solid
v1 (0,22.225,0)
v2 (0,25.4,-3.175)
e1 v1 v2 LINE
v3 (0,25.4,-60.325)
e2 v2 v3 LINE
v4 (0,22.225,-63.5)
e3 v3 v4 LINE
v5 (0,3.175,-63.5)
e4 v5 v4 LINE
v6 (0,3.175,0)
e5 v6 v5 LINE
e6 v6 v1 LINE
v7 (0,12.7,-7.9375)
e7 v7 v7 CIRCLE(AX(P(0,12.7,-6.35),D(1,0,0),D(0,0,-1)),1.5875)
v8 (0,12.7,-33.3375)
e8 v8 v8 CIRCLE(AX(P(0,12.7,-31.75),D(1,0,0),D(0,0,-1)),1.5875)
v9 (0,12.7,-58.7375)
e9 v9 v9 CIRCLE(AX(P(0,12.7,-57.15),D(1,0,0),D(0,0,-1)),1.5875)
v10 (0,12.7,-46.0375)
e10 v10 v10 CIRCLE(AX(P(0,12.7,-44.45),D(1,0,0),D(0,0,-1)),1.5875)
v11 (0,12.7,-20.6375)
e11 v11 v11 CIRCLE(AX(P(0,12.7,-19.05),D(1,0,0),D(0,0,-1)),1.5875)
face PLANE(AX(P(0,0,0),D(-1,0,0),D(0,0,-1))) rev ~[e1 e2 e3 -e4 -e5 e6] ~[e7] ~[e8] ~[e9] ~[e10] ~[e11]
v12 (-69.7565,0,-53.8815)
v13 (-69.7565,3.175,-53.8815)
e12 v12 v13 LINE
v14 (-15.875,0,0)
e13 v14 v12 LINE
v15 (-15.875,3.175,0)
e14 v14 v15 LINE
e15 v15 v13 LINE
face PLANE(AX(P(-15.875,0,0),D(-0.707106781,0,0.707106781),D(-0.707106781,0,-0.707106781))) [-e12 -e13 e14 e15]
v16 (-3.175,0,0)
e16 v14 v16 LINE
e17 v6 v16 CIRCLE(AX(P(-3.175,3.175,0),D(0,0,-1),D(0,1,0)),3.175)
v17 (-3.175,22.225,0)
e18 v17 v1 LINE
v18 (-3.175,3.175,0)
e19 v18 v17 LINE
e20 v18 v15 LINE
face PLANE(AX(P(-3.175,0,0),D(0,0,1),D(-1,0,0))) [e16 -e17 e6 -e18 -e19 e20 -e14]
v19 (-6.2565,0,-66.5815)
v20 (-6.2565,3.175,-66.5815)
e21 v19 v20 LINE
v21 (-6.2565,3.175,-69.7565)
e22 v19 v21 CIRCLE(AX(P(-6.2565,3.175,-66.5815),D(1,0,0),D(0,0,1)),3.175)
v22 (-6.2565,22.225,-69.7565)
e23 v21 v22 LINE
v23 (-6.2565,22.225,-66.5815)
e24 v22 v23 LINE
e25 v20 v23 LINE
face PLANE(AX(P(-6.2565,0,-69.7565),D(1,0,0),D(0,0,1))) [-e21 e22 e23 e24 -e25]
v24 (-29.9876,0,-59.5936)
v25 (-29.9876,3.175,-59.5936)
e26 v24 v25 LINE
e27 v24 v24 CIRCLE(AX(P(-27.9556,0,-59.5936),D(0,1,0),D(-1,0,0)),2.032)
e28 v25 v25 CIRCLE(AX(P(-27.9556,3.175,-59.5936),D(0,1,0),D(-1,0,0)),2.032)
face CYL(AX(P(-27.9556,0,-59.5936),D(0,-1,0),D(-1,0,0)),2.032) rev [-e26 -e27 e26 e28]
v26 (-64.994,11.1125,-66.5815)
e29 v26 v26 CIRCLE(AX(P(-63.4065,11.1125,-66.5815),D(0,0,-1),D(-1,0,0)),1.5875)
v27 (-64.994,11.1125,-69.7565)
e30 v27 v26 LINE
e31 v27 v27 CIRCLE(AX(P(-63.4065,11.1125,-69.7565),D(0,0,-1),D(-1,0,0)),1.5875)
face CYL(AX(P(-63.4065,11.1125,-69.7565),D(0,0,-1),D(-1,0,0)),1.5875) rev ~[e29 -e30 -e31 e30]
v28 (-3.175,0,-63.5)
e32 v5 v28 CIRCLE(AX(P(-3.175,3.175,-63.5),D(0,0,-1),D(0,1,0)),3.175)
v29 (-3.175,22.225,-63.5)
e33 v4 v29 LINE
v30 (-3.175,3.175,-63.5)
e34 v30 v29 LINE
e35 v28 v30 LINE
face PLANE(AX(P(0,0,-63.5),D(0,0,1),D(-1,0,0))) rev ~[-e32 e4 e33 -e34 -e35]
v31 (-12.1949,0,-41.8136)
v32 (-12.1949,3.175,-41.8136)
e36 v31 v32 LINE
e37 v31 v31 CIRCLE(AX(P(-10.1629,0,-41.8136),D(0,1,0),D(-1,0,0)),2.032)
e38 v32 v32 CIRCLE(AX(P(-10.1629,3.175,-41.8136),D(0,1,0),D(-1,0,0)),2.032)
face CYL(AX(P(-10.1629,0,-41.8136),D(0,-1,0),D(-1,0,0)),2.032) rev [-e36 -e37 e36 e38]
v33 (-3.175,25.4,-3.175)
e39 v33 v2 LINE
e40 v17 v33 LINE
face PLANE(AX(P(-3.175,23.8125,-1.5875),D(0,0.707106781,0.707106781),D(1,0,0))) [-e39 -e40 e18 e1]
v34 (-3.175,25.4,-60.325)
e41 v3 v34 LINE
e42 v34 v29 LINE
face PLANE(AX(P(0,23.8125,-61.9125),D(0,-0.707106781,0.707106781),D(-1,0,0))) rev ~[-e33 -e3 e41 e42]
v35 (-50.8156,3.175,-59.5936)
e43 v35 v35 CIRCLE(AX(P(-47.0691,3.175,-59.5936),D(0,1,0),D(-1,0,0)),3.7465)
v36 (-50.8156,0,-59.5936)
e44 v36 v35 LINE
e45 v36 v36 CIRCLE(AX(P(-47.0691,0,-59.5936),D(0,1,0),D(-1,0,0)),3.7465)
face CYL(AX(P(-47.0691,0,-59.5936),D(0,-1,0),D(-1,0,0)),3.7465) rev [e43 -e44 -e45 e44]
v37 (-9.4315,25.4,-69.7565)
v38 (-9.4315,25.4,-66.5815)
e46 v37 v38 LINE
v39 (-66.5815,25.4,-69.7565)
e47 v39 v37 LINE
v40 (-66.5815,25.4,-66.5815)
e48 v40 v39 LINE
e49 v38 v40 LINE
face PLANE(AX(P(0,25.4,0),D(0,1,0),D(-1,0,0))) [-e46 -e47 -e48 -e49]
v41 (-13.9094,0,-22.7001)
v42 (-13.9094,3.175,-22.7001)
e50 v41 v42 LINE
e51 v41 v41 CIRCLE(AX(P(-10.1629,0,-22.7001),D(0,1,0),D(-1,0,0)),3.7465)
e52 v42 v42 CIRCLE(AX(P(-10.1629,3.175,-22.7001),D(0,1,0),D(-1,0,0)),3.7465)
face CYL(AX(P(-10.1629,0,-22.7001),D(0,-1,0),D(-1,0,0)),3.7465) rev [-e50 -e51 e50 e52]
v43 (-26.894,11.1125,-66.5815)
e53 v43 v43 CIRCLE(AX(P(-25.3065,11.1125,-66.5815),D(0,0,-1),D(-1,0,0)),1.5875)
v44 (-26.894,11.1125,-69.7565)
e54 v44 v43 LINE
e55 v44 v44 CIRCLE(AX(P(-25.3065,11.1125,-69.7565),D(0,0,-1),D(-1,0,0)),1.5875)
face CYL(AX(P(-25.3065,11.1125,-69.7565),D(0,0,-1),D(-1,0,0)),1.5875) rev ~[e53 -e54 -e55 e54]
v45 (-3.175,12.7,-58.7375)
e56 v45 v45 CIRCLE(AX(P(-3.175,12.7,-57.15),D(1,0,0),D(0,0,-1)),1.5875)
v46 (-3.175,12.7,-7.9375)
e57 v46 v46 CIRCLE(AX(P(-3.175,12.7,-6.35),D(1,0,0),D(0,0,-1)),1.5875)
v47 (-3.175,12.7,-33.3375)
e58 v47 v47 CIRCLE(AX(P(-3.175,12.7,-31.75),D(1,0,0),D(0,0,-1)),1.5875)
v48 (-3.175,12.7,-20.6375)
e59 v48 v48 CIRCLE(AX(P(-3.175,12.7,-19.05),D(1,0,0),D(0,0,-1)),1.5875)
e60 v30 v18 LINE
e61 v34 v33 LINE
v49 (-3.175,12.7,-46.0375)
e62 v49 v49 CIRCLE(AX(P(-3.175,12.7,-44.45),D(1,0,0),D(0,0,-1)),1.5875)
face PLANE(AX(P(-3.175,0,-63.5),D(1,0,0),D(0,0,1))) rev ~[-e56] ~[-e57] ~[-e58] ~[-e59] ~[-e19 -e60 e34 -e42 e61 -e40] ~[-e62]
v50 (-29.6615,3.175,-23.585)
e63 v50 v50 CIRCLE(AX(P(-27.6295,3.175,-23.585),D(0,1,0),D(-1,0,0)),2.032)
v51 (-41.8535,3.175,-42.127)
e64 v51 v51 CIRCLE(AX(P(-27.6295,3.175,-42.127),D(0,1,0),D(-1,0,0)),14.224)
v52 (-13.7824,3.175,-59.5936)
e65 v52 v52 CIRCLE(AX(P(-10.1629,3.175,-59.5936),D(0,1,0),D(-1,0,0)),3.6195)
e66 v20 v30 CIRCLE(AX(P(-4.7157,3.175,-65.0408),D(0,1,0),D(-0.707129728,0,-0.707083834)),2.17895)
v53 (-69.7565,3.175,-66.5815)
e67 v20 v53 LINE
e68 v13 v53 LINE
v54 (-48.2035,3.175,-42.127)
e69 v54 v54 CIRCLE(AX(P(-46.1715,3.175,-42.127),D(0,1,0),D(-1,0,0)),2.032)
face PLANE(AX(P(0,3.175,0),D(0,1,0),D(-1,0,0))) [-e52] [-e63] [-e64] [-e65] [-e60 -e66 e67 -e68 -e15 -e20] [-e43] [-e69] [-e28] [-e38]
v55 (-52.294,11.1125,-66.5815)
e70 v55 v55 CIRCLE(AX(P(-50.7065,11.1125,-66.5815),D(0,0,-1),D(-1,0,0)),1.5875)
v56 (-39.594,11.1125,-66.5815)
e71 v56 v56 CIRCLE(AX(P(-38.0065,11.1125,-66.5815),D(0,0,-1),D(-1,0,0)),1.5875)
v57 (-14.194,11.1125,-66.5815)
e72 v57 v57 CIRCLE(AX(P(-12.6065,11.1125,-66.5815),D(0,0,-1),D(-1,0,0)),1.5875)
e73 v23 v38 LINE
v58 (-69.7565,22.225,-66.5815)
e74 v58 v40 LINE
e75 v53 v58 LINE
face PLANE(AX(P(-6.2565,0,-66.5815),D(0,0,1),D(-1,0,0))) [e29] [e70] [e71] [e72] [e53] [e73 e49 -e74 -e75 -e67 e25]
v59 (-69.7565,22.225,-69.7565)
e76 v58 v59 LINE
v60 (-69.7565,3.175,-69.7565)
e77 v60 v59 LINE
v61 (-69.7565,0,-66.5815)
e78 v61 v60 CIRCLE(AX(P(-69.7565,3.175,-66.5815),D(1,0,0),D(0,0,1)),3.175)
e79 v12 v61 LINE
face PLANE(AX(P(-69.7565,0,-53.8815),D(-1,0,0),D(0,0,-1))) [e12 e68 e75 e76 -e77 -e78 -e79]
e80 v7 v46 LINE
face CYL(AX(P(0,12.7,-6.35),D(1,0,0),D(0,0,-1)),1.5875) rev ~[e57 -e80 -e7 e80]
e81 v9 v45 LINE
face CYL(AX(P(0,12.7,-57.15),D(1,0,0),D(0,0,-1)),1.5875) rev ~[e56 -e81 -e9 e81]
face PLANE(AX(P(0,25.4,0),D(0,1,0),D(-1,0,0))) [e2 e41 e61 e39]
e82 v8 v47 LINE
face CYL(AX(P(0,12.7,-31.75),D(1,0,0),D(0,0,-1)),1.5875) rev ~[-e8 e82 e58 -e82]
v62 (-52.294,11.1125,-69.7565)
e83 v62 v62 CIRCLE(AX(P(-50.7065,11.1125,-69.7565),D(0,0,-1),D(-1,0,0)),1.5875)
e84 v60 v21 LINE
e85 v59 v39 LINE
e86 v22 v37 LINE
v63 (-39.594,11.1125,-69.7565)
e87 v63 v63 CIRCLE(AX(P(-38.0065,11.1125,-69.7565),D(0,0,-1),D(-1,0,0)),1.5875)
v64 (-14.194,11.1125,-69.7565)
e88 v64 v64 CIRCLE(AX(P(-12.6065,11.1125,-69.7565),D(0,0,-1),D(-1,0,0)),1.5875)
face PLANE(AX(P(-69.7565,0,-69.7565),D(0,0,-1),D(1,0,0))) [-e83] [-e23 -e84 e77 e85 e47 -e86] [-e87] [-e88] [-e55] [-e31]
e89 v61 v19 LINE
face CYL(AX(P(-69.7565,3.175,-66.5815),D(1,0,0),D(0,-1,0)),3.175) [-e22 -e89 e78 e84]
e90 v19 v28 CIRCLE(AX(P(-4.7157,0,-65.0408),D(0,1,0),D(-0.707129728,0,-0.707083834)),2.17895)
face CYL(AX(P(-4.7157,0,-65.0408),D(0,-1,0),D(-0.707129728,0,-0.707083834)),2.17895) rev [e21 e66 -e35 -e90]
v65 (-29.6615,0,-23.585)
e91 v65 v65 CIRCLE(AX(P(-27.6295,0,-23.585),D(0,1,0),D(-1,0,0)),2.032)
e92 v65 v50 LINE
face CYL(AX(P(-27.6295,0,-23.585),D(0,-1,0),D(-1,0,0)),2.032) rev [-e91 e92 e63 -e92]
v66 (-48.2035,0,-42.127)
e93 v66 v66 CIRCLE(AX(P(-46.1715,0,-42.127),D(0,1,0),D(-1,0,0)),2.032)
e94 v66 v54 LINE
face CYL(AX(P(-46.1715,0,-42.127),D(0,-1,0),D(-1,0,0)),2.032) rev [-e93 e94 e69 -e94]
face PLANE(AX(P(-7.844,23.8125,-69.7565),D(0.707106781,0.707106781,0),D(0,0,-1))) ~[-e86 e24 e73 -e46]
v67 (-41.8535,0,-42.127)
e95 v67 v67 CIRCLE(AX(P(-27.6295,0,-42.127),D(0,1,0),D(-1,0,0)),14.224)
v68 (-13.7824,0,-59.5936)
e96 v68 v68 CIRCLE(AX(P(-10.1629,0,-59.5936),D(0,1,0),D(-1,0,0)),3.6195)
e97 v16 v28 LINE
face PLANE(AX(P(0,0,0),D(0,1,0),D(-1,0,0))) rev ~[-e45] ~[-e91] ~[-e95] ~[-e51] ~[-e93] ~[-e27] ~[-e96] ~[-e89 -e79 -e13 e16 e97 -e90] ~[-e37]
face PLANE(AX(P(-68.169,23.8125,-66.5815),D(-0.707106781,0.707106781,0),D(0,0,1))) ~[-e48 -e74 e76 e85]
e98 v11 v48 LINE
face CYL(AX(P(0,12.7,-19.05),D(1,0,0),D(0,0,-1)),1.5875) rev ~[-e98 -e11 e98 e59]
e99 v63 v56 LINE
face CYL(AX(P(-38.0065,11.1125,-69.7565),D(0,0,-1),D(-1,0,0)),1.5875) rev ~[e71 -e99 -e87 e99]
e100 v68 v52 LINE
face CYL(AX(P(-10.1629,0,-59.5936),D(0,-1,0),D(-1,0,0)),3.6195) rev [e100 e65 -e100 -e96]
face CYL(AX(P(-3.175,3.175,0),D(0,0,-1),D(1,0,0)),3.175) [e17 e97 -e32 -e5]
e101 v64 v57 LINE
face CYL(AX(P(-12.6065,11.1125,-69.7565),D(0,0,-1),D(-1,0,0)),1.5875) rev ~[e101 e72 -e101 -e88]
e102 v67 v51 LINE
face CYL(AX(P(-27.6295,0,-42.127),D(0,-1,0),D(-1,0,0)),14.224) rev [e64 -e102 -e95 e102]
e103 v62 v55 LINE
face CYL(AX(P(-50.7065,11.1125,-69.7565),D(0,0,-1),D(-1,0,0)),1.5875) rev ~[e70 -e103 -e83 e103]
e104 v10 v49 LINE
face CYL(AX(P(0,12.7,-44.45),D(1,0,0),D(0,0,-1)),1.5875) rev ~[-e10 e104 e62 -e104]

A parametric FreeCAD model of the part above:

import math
import FreeCAD as App
import Part
import Sketcher

V = App.Vector
Q = App.Units.Quantity


def edges_at(feature, points):
    """Names of the edges that pass closest to the given points."""
    edges = feature.Shape.Edges
    near = lambda p: min(range(len(edges)), key=lambda i: edges[i].distToShape(Part.Vertex(*p))[0])
    return sorted({f"Edge{near(p) + 1}" for p in points})

doc = App.newDocument("Part")
body = doc.addObject("PartDesign::Body", "Body")

sketch1 = body.newObject("Sketcher::SketchObject", "Sketch")
sketch1.AttachmentSupport = (doc.getObject("XZ_Plane"), [""])
sketch1.MapMode = "FlatFace"
sketch1.addGeometry(Part.LineSegment(V(-15.9, 0, 0), V(-3.2, 0, 0)), False)
sketch1.addGeometry(Part.LineSegment(V(-3.2, 0, 0), V(-3.2, -63.5, 0)), False)
sketch1.addGeometry(Part.ArcOfCircle(Part.Circle(V(-4.7, -65, 0), V(0, 0, 1), 2.2), math.radians(45), math.radians(225)), False)
sketch1.addGeometry(Part.LineSegment(V(-6.3, -66.6, 0), V(-69.8, -66.6, 0)), False)
sketch1.addGeometry(Part.LineSegment(V(-69.8, -66.6, 0), V(-69.8, -53.9, 0)), False)
sketch1.addGeometry(Part.LineSegment(V(-69.8, -53.9, 0), V(-15.9, 0, 0)), False)
sketch1.addGeometry(Part.Circle(V(-10.2, -59.6, 0), V(0, 0, 1), 3.6), False)
sketch1.addGeometry(Part.Circle(V(-28, -59.6, 0), V(0, 0, 1), 2), False)
sketch1.addGeometry(Part.Circle(V(-10.2, -41.8, 0), V(0, 0, 1), 2), False)
sketch1.addGeometry(Part.Circle(V(-27.6, -42.1, 0), V(0, 0, 1), 14.2), False)
sketch1.addGeometry(Part.Circle(V(-47.1, -59.6, 0), V(0, 0, 1), 3.7), False)
sketch1.addGeometry(Part.Circle(V(-46.2, -42.1, 0), V(0, 0, 1), 2), False)
sketch1.addGeometry(Part.Circle(V(-10.2, -22.7, 0), V(0, 0, 1), 3.7), False)
sketch1.addGeometry(Part.Circle(V(-27.6, -23.6, 0), V(0, 0, 1), 2), False)
sketch1.addConstraint(Sketcher.Constraint("Coincident", 0, 2, 1, 1))
sketch1.addConstraint(Sketcher.Constraint("Coincident", 1, 2, 2, 1))
sketch1.addConstraint(Sketcher.Constraint("Coincident", 2, 2, 3, 1))
sketch1.addConstraint(Sketcher.Constraint("Coincident", 3, 2, 4, 1))
sketch1.addConstraint(Sketcher.Constraint("Coincident", 4, 2, 5, 1))
sketch1.addConstraint(Sketcher.Constraint("Coincident", 5, 2, 0, 1))
sketch1.addConstraint(Sketcher.Constraint("Horizontal", 0))
sketch1.addConstraint(Sketcher.Constraint("Vertical", 1))
sketch1.addConstraint(Sketcher.Constraint("Horizontal", 3))
sketch1.addConstraint(Sketcher.Constraint("Vertical", 4))
sketch1.addConstraint(Sketcher.Constraint("Equal", 7, 8))
sketch1.addConstraint(Sketcher.Constraint("Equal", 8, 11))
sketch1.addConstraint(Sketcher.Constraint("Equal", 10, 12))
sketch1.addConstraint(Sketcher.Constraint("Equal", 11, 13))
sketch1.addConstraint(Sketcher.Constraint("PointOnObject", 0, 2, -1))
sketch1.addConstraint(Sketcher.Constraint("Horizontal", 6, 3, 7, 3))
sketch1.addConstraint(Sketcher.Constraint("Horizontal", 7, 3, 10, 3))
sketch1.addConstraint(Sketcher.Constraint("Horizontal", 9, 3, 11, 3))
sketch1.addConstraint(Sketcher.Constraint("Vertical", 6, 3, 8, 3))
sketch1.addConstraint(Sketcher.Constraint("Vertical", 8, 3, 12, 3))
sketch1.addConstraint(Sketcher.Constraint("Vertical", 9, 3, 13, 3))
sketch1.addConstraint(Sketcher.Constraint("Equal", 3, 1))
sketch1.addConstraint(Sketcher.Constraint("Equal", 0, 4))
sketch1.addConstraint(Sketcher.Constraint("Distance", 5, Q("3 in")))
sketch1.addConstraint(Sketcher.Constraint("DistanceX", 0, 1, 0, 2, Q("0.5 in")))
sketch1.addConstraint(Sketcher.Constraint("DistanceX", 3, 2, 3, 1, Q("2.5 in")))
sketch1.addConstraint(Sketcher.Constraint("Diameter", 7, Q("0.16 in")))
sketch1.addConstraint(Sketcher.Constraint("Diameter", 9, Q("1.12 in")))
sketch1.addConstraint(Sketcher.Constraint("Diameter", 6, Q("0.285 in")))
sketch1.addConstraint(Sketcher.Constraint("Diameter", 10, Q("0.295 in")))
sketch1.addConstraint(Sketcher.Constraint("DistanceX", 0, 2, -1, 1, Q("0.125 in")))
sketch1.addConstraint(Sketcher.Constraint("Angle", 5, Q("45 deg")))
sketch1.addConstraint(Sketcher.Constraint("DistanceY", 6, 3, 8, 3, Q("0.7 in")))
sketch1.addConstraint(Sketcher.Constraint("DistanceX", 11, 3, 9, 3, Q("0.73 in")))
sketch1.addConstraint(Sketcher.Constraint("DistanceY", 9, 3, 13, 3, Q("0.73 in")))
sketch1.addConstraint(Sketcher.Constraint("DistanceX", 10, 3, 6, 3, Q("1.453 in")))
sketch1.addConstraint(Sketcher.Constraint("DistanceY", 6, 3, -1, 1, Q("2.3462 in")))
sketch1.addConstraint(Sketcher.Constraint("DistanceY", 12, 3, -1, 1, Q("0.8937 in")))
sketch1.addConstraint(Sketcher.Constraint("DistanceX", 7, 3, 6, 3, Q("0.7005 in")))
sketch1.addConstraint(Sketcher.Constraint("DistanceX", 6, 3, 2, 2, Q("0.1538 in")))
sketch1.addConstraint(Sketcher.Constraint("DistanceX", 2, 3, -1, 1, Q("4.7158 mm")))
sketch1.addConstraint(Sketcher.Constraint("DistanceX", 9, 3, -1, 1, Q("27.6295 mm")))
sketch1.addConstraint(Sketcher.Constraint("DistanceY", 9, 3, -1, 1, Q("42.127 mm")))
pad1 = body.newObject("PartDesign::Pad", "Pad")
pad1.Profile = sketch1
pad1.Length = Q("0.125 in")
pad1.Reversed = True

sketch2 = body.newObject("Sketcher::SketchObject", "Sketch001")
sketch2.AttachmentSupport = (doc.getObject("XZ_Plane"), [""])
sketch2.MapMode = "FlatFace"
sketch2.addGeometry(Part.LineSegment(V(-3.2, 0, 0), V(0, 0, 0)), False)
sketch2.addGeometry(Part.LineSegment(V(0, 0, 0), V(0, -63.5, 0)), False)
sketch2.addGeometry(Part.LineSegment(V(0, -63.5, 0), V(-3.2, -63.5, 0)), False)
sketch2.addGeometry(Part.LineSegment(V(-3.2, -63.5, 0), V(-3.2, 0, 0)), False)
sketch2.addGeometry(Part.LineSegment(V(-69.8, -66.6, 0), V(-6.3, -66.6, 0)), False)
sketch2.addGeometry(Part.LineSegment(V(-6.3, -66.6, 0), V(-6.3, -69.8, 0)), False)
sketch2.addGeometry(Part.LineSegment(V(-6.3, -69.8, 0), V(-69.8, -69.8, 0)), False)
sketch2.addGeometry(Part.LineSegment(V(-69.8, -69.8, 0), V(-69.8, -66.6, 0)), False)
sketch2.addConstraint(Sketcher.Constraint("Coincident", 0, 2, 1, 1))
sketch2.addConstraint(Sketcher.Constraint("Coincident", 1, 2, 2, 1))
sketch2.addConstraint(Sketcher.Constraint("Coincident", 2, 2, 3, 1))
sketch2.addConstraint(Sketcher.Constraint("Coincident", 3, 2, 0, 1))
sketch2.addConstraint(Sketcher.Constraint("Coincident", 4, 2, 5, 1))
sketch2.addConstraint(Sketcher.Constraint("Coincident", 5, 2, 6, 1))
sketch2.addConstraint(Sketcher.Constraint("Coincident", 6, 2, 7, 1))
sketch2.addConstraint(Sketcher.Constraint("Coincident", 7, 2, 4, 1))
sketch2.addConstraint(Sketcher.Constraint("Horizontal", 0))
sketch2.addConstraint(Sketcher.Constraint("Vertical", 1))
sketch2.addConstraint(Sketcher.Constraint("Horizontal", 2))
sketch2.addConstraint(Sketcher.Constraint("Vertical", 3))
sketch2.addConstraint(Sketcher.Constraint("Horizontal", 4))
sketch2.addConstraint(Sketcher.Constraint("Vertical", 5))
sketch2.addConstraint(Sketcher.Constraint("Horizontal", 6))
sketch2.addConstraint(Sketcher.Constraint("Vertical", 7))
sketch2.addConstraint(Sketcher.Constraint("Coincident", 0, 2, -1, 1))
sketch2.addConstraint(Sketcher.Constraint("Equal", 6, 1))
sketch2.addConstraint(Sketcher.Constraint("Equal", 2, 5))
sketch2.addConstraint(Sketcher.Constraint("DistanceX", 4, 1, 4, 2, Q("2.5 in")))
sketch2.addConstraint(Sketcher.Constraint("DistanceX", 0, 1, 0, 2, Q("0.125 in")))
sketch2.addConstraint(Sketcher.Constraint("DistanceX", 4, 2, -1, 1, Q("6.2565 mm")))
sketch2.addConstraint(Sketcher.Constraint("DistanceY", 4, 2, -1, 1, Q("66.5815 mm")))
pad2 = body.newObject("PartDesign::Pad", "Pad001")
pad2.Profile = sketch2
pad2.Length = Q("1 in")
pad2.Reversed = True
doc.recompute()

chamfer = body.newObject("PartDesign::Chamfer", "Chamfer")
chamfer.Base = (pad2, edges_at(pad2, [
    (-6.256, 25.4, -68.169),
    (-1.587, 25.4, -63.5),
    (-1.587, 25.4, 0),
    (-69.757, 25.4, -68.169),
]))
chamfer.Size = Q("0.125 in")

sketch3 = body.newObject("Sketcher::SketchObject", "Sketch002")
sketch3.AttachmentSupport = (doc.getObject("YZ_Plane"), [""])
sketch3.MapMode = "FlatFace"
sketch3.addGeometry(Part.Circle(V(12.7, -6.3, 0), V(0, 0, 1), 1.6), False)
sketch3.addGeometry(Part.Circle(V(12.7, -19.1, 0), V(0, 0, 1), 1.6), False)
sketch3.addGeometry(Part.Circle(V(12.7, -31.8, 0), V(0, 0, 1), 1.6), False)
sketch3.addGeometry(Part.Circle(V(12.7, -44.5, 0), V(0, 0, 1), 1.6), False)
sketch3.addGeometry(Part.Circle(V(12.7, -57.1, 0), V(0, 0, 1), 1.6), False)
sketch3.addConstraint(Sketcher.Constraint("Equal", 0, 1))
sketch3.addConstraint(Sketcher.Constraint("Equal", 1, 2))
sketch3.addConstraint(Sketcher.Constraint("Equal", 2, 3))
sketch3.addConstraint(Sketcher.Constraint("Equal", 3, 4))
sketch3.addConstraint(Sketcher.Constraint("Vertical", 0, 3, 1, 3))
sketch3.addConstraint(Sketcher.Constraint("Vertical", 1, 3, 2, 3))
sketch3.addConstraint(Sketcher.Constraint("Vertical", 2, 3, 3, 3))
sketch3.addConstraint(Sketcher.Constraint("Vertical", 3, 3, 4, 3))
sketch3.addConstraint(Sketcher.Constraint("Diameter", 0, Q("0.125 in")))
sketch3.addConstraint(Sketcher.Constraint("DistanceY", 2, 3, 0, 3, Q("1 in")))
sketch3.addConstraint(Sketcher.Constraint("DistanceY", 3, 3, 1, 3, Q("1 in")))
sketch3.addConstraint(Sketcher.Constraint("DistanceY", 4, 3, 2, 3, Q("1 in")))
sketch3.addConstraint(Sketcher.Constraint("DistanceX", -1, 1, 0, 3, Q("0.5 in")))
sketch3.addConstraint(Sketcher.Constraint("DistanceY", 1, 3, 0, 3, Q("0.5 in")))
sketch3.addConstraint(Sketcher.Constraint("DistanceY", 0, 3, -1, 1, Q("0.25 in")))
pocket1 = body.newObject("PartDesign::Pocket", "Pocket")
pocket1.Profile = sketch3
pocket1.Length = Q("0.125 in")

sketch4 = body.newObject("Sketcher::SketchObject", "Sketch003")
sketch4.AttachmentSupport = (doc.getObject("XY_Plane"), [""])
sketch4.MapMode = "FlatFace"
sketch4.AttachmentOffset = App.Placement(V(0, 0, -69.7565), App.Rotation())
sketch4.addGeometry(Part.Circle(V(-12.6, 11.1, 0), V(0, 0, 1), 1.6), False)
sketch4.addGeometry(Part.Circle(V(-25.3, 11.1, 0), V(0, 0, 1), 1.6), False)
sketch4.addGeometry(Part.Circle(V(-38, 11.1, 0), V(0, 0, 1), 1.6), False)
sketch4.addGeometry(Part.Circle(V(-50.7, 11.1, 0), V(0, 0, 1), 1.6), False)
sketch4.addGeometry(Part.Circle(V(-63.4, 11.1, 0), V(0, 0, 1), 1.6), False)
sketch4.addConstraint(Sketcher.Constraint("Equal", 0, 1))
sketch4.addConstraint(Sketcher.Constraint("Equal", 1, 2))
sketch4.addConstraint(Sketcher.Constraint("Equal", 2, 3))
sketch4.addConstraint(Sketcher.Constraint("Equal", 3, 4))
sketch4.addConstraint(Sketcher.Constraint("Horizontal", 0, 3, 1, 3))
sketch4.addConstraint(Sketcher.Constraint("Horizontal", 1, 3, 2, 3))
sketch4.addConstraint(Sketcher.Constraint("Horizontal", 2, 3, 3, 3))
sketch4.addConstraint(Sketcher.Constraint("Horizontal", 3, 3, 4, 3))
sketch4.addConstraint(Sketcher.Constraint("Diameter", 0, Q("0.125 in")))
sketch4.addConstraint(Sketcher.Constraint("DistanceX", 2, 3, 0, 3, Q("1 in")))
sketch4.addConstraint(Sketcher.Constraint("DistanceX", 3, 3, 1, 3, Q("1 in")))
sketch4.addConstraint(Sketcher.Constraint("DistanceX", 4, 3, 2, 3, Q("1 in")))
sketch4.addConstraint(Sketcher.Constraint("DistanceX", 1, 3, 0, 3, Q("0.5 in")))
sketch4.addConstraint(Sketcher.Constraint("DistanceY", -1, 1, 0, 3, Q("0.4375 in")))
sketch4.addConstraint(Sketcher.Constraint("DistanceX", 0, 3, -1, 1, Q("12.6065 mm")))
pocket2 = body.newObject("PartDesign::Pocket", "Pocket001")
pocket2.Profile = sketch4
pocket2.Length = Q("0.125 in")
pocket2.Reversed = True
doc.recompute()

fillet = body.newObject("PartDesign::Fillet", "Fillet")
fillet.Base = (pocket2, edges_at(pocket2, [(0, 0, -31.75), (-38.007, 0, -69.757)]))
fillet.Radius = Q("0.125 in")

doc.recompute()
